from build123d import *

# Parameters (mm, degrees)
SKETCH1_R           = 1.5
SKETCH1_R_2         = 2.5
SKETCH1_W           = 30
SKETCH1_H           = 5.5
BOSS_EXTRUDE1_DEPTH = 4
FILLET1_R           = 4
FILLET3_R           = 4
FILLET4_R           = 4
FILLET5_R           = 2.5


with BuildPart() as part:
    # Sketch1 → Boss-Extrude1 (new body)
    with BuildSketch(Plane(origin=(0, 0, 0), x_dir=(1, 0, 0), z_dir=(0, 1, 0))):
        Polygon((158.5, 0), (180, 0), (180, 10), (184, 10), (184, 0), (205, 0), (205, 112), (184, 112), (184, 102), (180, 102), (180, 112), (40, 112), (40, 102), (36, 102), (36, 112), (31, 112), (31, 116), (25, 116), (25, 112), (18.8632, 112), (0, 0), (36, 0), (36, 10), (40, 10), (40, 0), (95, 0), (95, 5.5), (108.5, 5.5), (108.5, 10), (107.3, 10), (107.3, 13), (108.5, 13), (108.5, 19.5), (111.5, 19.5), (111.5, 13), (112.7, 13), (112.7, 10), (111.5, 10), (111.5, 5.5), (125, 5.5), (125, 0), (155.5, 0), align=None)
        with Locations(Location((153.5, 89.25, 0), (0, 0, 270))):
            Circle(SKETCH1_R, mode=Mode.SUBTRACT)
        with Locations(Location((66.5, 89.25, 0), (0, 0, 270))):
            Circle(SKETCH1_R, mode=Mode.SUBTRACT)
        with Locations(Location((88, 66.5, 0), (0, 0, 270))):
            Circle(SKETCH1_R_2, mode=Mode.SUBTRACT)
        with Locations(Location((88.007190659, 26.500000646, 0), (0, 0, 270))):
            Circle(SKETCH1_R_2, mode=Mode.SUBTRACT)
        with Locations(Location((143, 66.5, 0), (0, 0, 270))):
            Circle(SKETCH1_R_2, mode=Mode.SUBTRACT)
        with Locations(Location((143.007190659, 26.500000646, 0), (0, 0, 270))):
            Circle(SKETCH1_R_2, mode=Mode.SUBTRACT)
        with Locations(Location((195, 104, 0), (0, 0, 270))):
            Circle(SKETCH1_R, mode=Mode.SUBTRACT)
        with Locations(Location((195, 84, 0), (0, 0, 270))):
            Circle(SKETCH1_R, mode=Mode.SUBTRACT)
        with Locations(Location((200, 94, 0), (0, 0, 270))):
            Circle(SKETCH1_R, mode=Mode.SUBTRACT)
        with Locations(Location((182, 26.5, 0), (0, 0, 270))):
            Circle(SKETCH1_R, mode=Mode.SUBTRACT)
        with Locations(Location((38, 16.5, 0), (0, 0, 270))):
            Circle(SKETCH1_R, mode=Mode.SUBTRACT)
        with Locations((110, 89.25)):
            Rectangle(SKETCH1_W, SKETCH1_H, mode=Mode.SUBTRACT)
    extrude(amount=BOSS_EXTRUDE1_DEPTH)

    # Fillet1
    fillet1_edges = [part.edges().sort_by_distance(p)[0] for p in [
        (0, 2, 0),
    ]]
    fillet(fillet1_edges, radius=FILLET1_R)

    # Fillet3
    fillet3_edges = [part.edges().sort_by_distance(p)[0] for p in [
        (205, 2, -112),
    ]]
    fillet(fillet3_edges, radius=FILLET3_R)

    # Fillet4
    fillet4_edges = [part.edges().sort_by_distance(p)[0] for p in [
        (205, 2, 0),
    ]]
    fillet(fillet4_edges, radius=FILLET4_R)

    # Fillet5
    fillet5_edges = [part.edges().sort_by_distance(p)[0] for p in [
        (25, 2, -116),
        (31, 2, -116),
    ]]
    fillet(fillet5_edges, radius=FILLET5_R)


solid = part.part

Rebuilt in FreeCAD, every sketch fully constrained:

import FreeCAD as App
import Part
import Sketcher

V = App.Vector


def edges_at(feature, points):
    """Names of the edges that pass closest to the given points."""
    edges = feature.Shape.Edges
    near = lambda p: min(range(len(edges)), key=lambda i: edges[i].distToShape(Part.Vertex(*p))[0])
    return sorted({f"Edge{near(p) + 1}" for p in points})


def add_polygon(sketch, points):
    """Adds a closed chain of lines whose ends are joined by coincident constraints."""
    first, n = sketch.GeometryCount, len(points)
    for a, b in zip(points, points[1:] + points[:1]):
        sketch.addGeometry(Part.LineSegment(App.Vector(*a, 0), App.Vector(*b, 0)), False)
    for i in range(n):
        sketch.addConstraint(Sketcher.Constraint("Coincident", first + i, 2, first + (i + 1) % n, 1))

doc = App.newDocument("Part")
body = doc.addObject("PartDesign::Body", "Body")

sketch1 = doc.addObject("Sketcher::SketchObject", "Sketch")
body.addObject(sketch1)
sketch1.AttachmentSupport = (doc.XZ_Plane, [""])
sketch1.MapMode = "FlatFace"
add_polygon(sketch1, [(180, 0), (180, -10), (184, -10), (184, 0), (205, 0), (205, -112), (184, -112), (184, -102), (180, -102), (180, -112), (40, -112), (40, -102), (36, -102), (36, -112), (31, -112), (31, -116), (25, -116), (25, -112), (18.9, -112), (0, 0), (36, 0), (36, -10), (40, -10), (40, 0), (95, 0), (95, -5.5), (108.5, -5.5), (108.5, -10), (107.3, -10), (107.3, -13), (108.5, -13), (108.5, -19.5), (111.5, -19.5), (111.5, -13), (112.7, -13), (112.7, -10), (111.5, -10), (111.5, -5.5), (125, -5.5), (125, 0)])
sketch1.addGeometry(Part.Circle(V(38, -16.5, 0), V(0, 0, 1), 1.5), False)
sketch1.addGeometry(Part.Circle(V(88, -26.5, 0), V(0, 0, 1), 2.5), False)
sketch1.addGeometry(Part.Circle(V(143, -26.5, 0), V(0, 0, 1), 2.5), False)
sketch1.addGeometry(Part.Circle(V(182, -26.5, 0), V(0, 0, 1), 1.5), False)
sketch1.addGeometry(Part.Circle(V(88, -66.5, 0), V(0, 0, 1), 2.5), False)
sketch1.addGeometry(Part.Circle(V(66.5, -89.2, 0), V(0, 0, 1), 1.5), False)
add_polygon(sketch1, [(125, -86.5), (95, -86.5), (95, -92), (125, -92)])
sketch1.addGeometry(Part.Circle(V(143, -66.5, 0), V(0, 0, 1), 2.5), False)
sketch1.addGeometry(Part.Circle(V(153.5, -89.2, 0), V(0, 0, 1), 1.5), False)
sketch1.addGeometry(Part.Circle(V(195, -84, 0), V(0, 0, 1), 1.5), False)
sketch1.addGeometry(Part.Circle(V(200, -94, 0), V(0, 0, 1), 1.5), False)
sketch1.addGeometry(Part.Circle(V(195, -104, 0), V(0, 0, 1), 1.5), False)
sketch1.addConstraint([
    Sketcher.Constraint("Vertical", 0),
    Sketcher.Constraint("Horizontal", 1),
    Sketcher.Constraint("Vertical", 2),
    Sketcher.Constraint("Horizontal", 3),
    Sketcher.Constraint("Vertical", 4),
    Sketcher.Constraint("Horizontal", 5),
    Sketcher.Constraint("Vertical", 6),
    Sketcher.Constraint("Horizontal", 7),
    Sketcher.Constraint("Vertical", 8),
    Sketcher.Constraint("Horizontal", 9),
    Sketcher.Constraint("Vertical", 10),
    Sketcher.Constraint("Horizontal", 11),
    Sketcher.Constraint("Vertical", 12),
    Sketcher.Constraint("Horizontal", 13),
    Sketcher.Constraint("Vertical", 14),
    Sketcher.Constraint("Horizontal", 15),
    Sketcher.Constraint("Vertical", 16),
    Sketcher.Constraint("Horizontal", 17),
    Sketcher.Constraint("Horizontal", 19),
    Sketcher.Constraint("Vertical", 20),
    Sketcher.Constraint("Horizontal", 21),
    Sketcher.Constraint("Vertical", 22),
    Sketcher.Constraint("Horizontal", 23),
    Sketcher.Constraint("Vertical", 24),
    Sketcher.Constraint("Horizontal", 25),
    Sketcher.Constraint("Vertical", 26),
    Sketcher.Constraint("Horizontal", 27),
    Sketcher.Constraint("Vertical", 28),
    Sketcher.Constraint("Horizontal", 29),
    Sketcher.Constraint("Vertical", 30),
    Sketcher.Constraint("Horizontal", 31),
    Sketcher.Constraint("Vertical", 32),
    Sketcher.Constraint("Horizontal", 33),
    Sketcher.Constraint("Vertical", 34),
    Sketcher.Constraint("Horizontal", 35),
    Sketcher.Constraint("Vertical", 36),
    Sketcher.Constraint("Horizontal", 37),
    Sketcher.Constraint("Vertical", 38),
    Sketcher.Constraint("Horizontal", 39),
    Sketcher.Constraint("Horizontal", 46),
    Sketcher.Constraint("Vertical", 47),
    Sketcher.Constraint("Horizontal", 48),
    Sketcher.Constraint("Vertical", 49),
    Sketcher.Constraint("Coincident", 18, 2, -1, 1),
    Sketcher.Constraint("Equal", 41, 42),
    Sketcher.Constraint("Equal", 40, 43),
    Sketcher.Constraint("Equal", 42, 44),
    Sketcher.Constraint("Equal", 43, 45),
    Sketcher.Constraint("Equal", 44, 50),
    Sketcher.Constraint("Equal", 45, 51),
    Sketcher.Constraint("Equal", 51, 52),
    Sketcher.Constraint("Equal", 52, 53),
    Sketcher.Constraint("Equal", 53, 54),
    Sketcher.Constraint("PointOnObject", 2, 2, -1),
    Sketcher.Constraint("PointOnObject", 22, 2, -1),
    Sketcher.Constraint("PointOnObject", 38, 2, -1),
    Sketcher.Constraint("Horizontal", 41, 3, 42, 3),
    Sketcher.Constraint("Horizontal", 42, 3, 43, 3),
    Sketcher.Constraint("Horizontal", 44, 3, 50, 3),
    Sketcher.Constraint("Horizontal", 45, 3, 51, 3),
    Sketcher.Constraint("Horizontal", 5, 2, 8, 2),
    Sketcher.Constraint("Horizontal", 7, 2, 10, 2),
    Sketcher.Constraint("Horizontal", 9, 2, 12, 2),
    Sketcher.Constraint("Horizontal", 13, 2, 16, 2),
    Sketcher.Constraint("Horizontal", 1, 2, 20, 2),
    Sketcher.Constraint("Horizontal", 21, 2, 26, 2),
    Sketcher.Constraint("Horizontal", 29, 2, 32, 2),
    Sketcher.Constraint("Horizontal", 27, 2, 34, 2),
    Sketcher.Constraint("Horizontal", 25, 2, 36, 2),
    Sketcher.Constraint("Vertical", 52, 3, 54, 3),
    Sketcher.Constraint("Vertical", 2, 2, 5, 2),
    Sketcher.Constraint("Vertical", 0, 2, 7, 2),
    Sketcher.Constraint("Vertical", 12, 2, 19, 2),
    Sketcher.Constraint("Vertical", 10, 2, 21, 2),
    Sketcher.Constraint("Vertical", 26, 2, 29, 2),
    Sketcher.Constraint("Vertical", 32, 2, 35, 2),
    Sketcher.Constraint("Vertical", 24, 2, 46, 2),
    Sketcher.Constraint("Vertical", 38, 2, 48, 2),
    Sketcher.Constraint("Equal", 7, 11),
    Sketcher.Constraint("Equal", 29, 33),
    Sketcher.Constraint("Equal", 25, 37),
    Sketcher.Constraint("Equal", 23, 39),
    Sketcher.Constraint("Equal", 2, 6),
    Sketcher.Constraint("Equal", 21, 14),
    Sketcher.Constraint("Equal", 31, 28),
    Sketcher.Constraint("Equal", 38, 47),
    Sketcher.Constraint("Diameter", 40, 3.0),
    Sketcher.Constraint("Diameter", 41, 5.0),
    Sketcher.Constraint("DistanceX", 1, 1, 1, 2, 4.0),
    Sketcher.Constraint("DistanceX", 3, 1, 3, 2, 21.0),
    Sketcher.Constraint("DistanceX", 9, 2, 9, 1, 140.0),
    Sketcher.Constraint("DistanceX", 13, 2, 13, 1, 5.0),
    Sketcher.Constraint("DistanceX", 15, 2, 15, 1, 6.0),
    Sketcher.Constraint("DistanceX", 19, 1, 19, 2, 36.0),
    Sketcher.Constraint("DistanceX", 23, 1, 23, 2, 55.0),
    Sketcher.Constraint("DistanceX", 31, 1, 31, 2, 3.0),
    Sketcher.Constraint("DistanceY", 0, 2, 0, 1, 10.0),
    Sketcher.Constraint("DistanceY", 4, 2, 4, 1, 112.0),
    Sketcher.Constraint("DistanceX", 27, 2, 27, 1, 1.2),
    Sketcher.Constraint("DistanceY", 24, 2, 24, 1, 5.5),
    Sketcher.Constraint("DistanceY", 30, 2, 30, 1, 6.5),
    Sketcher.Constraint("DistanceX", -1, 1, 40, 3, 38.0),
    Sketcher.Constraint("DistanceX", -1, 1, 43, 3, 182.0),
    Sketcher.Constraint("DistanceX", -1, 1, 44, 3, 88.0),
    Sketcher.Constraint("DistanceX", -1, 1, 50, 3, 143.0),
    Sketcher.Constraint("DistanceX", -1, 1, 52, 3, 195.0),
    Sketcher.Constraint("DistanceY", 52, 3, -1, 1, 84.0),
    Sketcher.Constraint("DistanceX", -1, 1, 53, 3, 200.0),
    Sketcher.Constraint("DistanceY", 53, 3, -1, 1, 94.0),
    Sketcher.Constraint("DistanceY", 54, 3, -1, 1, 104.0),
    Sketcher.Constraint("DistanceY", 47, 2, -1, 1, 92.0),
    Sketcher.Constraint("DistanceY", 41, 3, 40, 3, 10.000001),
    Sketcher.Constraint("DistanceX", 41, 3, 42, 3, 55.0),
    Sketcher.Constraint("DistanceY", 44, 3, 41, 3, 39.999999),
    Sketcher.Constraint("DistanceX", 45, 3, 51, 3, 87.0),
    Sketcher.Constraint("DistanceY", 41, 3, 24, 2, 21.000001),
    Sketcher.Constraint("DistanceX", -1, 1, 45, 3, 66.5),
    Sketcher.Constraint("DistanceY", 45, 3, -1, 1, 89.25),
    Sketcher.Constraint("DistanceX", 17, 2, 17, 1, 6.1368),
    Sketcher.Constraint("DistanceX", -1, 1, 41, 3, 88.007191),
])
pad1 = doc.addObject("PartDesign::Pad", "Pad")
body.addObject(pad1)
pad1.Profile = sketch1
pad1.Length = 4
pad1.Reversed = True
doc.recompute()

fillet = doc.addObject("PartDesign::Fillet", "Fillet")
body.addObject(fillet)
fillet.Base = (pad1, edges_at(pad1, [(0, 2, 0)]))
fillet.Radius = 4
doc.recompute()

fillet2 = doc.addObject("PartDesign::Fillet", "Fillet001")
body.addObject(fillet2)
fillet2.Base = (fillet, edges_at(fillet, [(205, 2, -112)]))
fillet2.Radius = 4
doc.recompute()

fillet3 = doc.addObject("PartDesign::Fillet", "Fillet002")
body.addObject(fillet3)
fillet3.Base = (fillet2, edges_at(fillet2, [(205, 2, 0)]))
fillet3.Radius = 4
doc.recompute()

fillet4 = doc.addObject("PartDesign::Fillet", "Fillet003")
body.addObject(fillet4)
fillet4.Base = (fillet3, edges_at(fillet3, [(25, 2, -116), (31, 2, -116)]))
fillet4.Radius = 2.5

doc.recompute()
